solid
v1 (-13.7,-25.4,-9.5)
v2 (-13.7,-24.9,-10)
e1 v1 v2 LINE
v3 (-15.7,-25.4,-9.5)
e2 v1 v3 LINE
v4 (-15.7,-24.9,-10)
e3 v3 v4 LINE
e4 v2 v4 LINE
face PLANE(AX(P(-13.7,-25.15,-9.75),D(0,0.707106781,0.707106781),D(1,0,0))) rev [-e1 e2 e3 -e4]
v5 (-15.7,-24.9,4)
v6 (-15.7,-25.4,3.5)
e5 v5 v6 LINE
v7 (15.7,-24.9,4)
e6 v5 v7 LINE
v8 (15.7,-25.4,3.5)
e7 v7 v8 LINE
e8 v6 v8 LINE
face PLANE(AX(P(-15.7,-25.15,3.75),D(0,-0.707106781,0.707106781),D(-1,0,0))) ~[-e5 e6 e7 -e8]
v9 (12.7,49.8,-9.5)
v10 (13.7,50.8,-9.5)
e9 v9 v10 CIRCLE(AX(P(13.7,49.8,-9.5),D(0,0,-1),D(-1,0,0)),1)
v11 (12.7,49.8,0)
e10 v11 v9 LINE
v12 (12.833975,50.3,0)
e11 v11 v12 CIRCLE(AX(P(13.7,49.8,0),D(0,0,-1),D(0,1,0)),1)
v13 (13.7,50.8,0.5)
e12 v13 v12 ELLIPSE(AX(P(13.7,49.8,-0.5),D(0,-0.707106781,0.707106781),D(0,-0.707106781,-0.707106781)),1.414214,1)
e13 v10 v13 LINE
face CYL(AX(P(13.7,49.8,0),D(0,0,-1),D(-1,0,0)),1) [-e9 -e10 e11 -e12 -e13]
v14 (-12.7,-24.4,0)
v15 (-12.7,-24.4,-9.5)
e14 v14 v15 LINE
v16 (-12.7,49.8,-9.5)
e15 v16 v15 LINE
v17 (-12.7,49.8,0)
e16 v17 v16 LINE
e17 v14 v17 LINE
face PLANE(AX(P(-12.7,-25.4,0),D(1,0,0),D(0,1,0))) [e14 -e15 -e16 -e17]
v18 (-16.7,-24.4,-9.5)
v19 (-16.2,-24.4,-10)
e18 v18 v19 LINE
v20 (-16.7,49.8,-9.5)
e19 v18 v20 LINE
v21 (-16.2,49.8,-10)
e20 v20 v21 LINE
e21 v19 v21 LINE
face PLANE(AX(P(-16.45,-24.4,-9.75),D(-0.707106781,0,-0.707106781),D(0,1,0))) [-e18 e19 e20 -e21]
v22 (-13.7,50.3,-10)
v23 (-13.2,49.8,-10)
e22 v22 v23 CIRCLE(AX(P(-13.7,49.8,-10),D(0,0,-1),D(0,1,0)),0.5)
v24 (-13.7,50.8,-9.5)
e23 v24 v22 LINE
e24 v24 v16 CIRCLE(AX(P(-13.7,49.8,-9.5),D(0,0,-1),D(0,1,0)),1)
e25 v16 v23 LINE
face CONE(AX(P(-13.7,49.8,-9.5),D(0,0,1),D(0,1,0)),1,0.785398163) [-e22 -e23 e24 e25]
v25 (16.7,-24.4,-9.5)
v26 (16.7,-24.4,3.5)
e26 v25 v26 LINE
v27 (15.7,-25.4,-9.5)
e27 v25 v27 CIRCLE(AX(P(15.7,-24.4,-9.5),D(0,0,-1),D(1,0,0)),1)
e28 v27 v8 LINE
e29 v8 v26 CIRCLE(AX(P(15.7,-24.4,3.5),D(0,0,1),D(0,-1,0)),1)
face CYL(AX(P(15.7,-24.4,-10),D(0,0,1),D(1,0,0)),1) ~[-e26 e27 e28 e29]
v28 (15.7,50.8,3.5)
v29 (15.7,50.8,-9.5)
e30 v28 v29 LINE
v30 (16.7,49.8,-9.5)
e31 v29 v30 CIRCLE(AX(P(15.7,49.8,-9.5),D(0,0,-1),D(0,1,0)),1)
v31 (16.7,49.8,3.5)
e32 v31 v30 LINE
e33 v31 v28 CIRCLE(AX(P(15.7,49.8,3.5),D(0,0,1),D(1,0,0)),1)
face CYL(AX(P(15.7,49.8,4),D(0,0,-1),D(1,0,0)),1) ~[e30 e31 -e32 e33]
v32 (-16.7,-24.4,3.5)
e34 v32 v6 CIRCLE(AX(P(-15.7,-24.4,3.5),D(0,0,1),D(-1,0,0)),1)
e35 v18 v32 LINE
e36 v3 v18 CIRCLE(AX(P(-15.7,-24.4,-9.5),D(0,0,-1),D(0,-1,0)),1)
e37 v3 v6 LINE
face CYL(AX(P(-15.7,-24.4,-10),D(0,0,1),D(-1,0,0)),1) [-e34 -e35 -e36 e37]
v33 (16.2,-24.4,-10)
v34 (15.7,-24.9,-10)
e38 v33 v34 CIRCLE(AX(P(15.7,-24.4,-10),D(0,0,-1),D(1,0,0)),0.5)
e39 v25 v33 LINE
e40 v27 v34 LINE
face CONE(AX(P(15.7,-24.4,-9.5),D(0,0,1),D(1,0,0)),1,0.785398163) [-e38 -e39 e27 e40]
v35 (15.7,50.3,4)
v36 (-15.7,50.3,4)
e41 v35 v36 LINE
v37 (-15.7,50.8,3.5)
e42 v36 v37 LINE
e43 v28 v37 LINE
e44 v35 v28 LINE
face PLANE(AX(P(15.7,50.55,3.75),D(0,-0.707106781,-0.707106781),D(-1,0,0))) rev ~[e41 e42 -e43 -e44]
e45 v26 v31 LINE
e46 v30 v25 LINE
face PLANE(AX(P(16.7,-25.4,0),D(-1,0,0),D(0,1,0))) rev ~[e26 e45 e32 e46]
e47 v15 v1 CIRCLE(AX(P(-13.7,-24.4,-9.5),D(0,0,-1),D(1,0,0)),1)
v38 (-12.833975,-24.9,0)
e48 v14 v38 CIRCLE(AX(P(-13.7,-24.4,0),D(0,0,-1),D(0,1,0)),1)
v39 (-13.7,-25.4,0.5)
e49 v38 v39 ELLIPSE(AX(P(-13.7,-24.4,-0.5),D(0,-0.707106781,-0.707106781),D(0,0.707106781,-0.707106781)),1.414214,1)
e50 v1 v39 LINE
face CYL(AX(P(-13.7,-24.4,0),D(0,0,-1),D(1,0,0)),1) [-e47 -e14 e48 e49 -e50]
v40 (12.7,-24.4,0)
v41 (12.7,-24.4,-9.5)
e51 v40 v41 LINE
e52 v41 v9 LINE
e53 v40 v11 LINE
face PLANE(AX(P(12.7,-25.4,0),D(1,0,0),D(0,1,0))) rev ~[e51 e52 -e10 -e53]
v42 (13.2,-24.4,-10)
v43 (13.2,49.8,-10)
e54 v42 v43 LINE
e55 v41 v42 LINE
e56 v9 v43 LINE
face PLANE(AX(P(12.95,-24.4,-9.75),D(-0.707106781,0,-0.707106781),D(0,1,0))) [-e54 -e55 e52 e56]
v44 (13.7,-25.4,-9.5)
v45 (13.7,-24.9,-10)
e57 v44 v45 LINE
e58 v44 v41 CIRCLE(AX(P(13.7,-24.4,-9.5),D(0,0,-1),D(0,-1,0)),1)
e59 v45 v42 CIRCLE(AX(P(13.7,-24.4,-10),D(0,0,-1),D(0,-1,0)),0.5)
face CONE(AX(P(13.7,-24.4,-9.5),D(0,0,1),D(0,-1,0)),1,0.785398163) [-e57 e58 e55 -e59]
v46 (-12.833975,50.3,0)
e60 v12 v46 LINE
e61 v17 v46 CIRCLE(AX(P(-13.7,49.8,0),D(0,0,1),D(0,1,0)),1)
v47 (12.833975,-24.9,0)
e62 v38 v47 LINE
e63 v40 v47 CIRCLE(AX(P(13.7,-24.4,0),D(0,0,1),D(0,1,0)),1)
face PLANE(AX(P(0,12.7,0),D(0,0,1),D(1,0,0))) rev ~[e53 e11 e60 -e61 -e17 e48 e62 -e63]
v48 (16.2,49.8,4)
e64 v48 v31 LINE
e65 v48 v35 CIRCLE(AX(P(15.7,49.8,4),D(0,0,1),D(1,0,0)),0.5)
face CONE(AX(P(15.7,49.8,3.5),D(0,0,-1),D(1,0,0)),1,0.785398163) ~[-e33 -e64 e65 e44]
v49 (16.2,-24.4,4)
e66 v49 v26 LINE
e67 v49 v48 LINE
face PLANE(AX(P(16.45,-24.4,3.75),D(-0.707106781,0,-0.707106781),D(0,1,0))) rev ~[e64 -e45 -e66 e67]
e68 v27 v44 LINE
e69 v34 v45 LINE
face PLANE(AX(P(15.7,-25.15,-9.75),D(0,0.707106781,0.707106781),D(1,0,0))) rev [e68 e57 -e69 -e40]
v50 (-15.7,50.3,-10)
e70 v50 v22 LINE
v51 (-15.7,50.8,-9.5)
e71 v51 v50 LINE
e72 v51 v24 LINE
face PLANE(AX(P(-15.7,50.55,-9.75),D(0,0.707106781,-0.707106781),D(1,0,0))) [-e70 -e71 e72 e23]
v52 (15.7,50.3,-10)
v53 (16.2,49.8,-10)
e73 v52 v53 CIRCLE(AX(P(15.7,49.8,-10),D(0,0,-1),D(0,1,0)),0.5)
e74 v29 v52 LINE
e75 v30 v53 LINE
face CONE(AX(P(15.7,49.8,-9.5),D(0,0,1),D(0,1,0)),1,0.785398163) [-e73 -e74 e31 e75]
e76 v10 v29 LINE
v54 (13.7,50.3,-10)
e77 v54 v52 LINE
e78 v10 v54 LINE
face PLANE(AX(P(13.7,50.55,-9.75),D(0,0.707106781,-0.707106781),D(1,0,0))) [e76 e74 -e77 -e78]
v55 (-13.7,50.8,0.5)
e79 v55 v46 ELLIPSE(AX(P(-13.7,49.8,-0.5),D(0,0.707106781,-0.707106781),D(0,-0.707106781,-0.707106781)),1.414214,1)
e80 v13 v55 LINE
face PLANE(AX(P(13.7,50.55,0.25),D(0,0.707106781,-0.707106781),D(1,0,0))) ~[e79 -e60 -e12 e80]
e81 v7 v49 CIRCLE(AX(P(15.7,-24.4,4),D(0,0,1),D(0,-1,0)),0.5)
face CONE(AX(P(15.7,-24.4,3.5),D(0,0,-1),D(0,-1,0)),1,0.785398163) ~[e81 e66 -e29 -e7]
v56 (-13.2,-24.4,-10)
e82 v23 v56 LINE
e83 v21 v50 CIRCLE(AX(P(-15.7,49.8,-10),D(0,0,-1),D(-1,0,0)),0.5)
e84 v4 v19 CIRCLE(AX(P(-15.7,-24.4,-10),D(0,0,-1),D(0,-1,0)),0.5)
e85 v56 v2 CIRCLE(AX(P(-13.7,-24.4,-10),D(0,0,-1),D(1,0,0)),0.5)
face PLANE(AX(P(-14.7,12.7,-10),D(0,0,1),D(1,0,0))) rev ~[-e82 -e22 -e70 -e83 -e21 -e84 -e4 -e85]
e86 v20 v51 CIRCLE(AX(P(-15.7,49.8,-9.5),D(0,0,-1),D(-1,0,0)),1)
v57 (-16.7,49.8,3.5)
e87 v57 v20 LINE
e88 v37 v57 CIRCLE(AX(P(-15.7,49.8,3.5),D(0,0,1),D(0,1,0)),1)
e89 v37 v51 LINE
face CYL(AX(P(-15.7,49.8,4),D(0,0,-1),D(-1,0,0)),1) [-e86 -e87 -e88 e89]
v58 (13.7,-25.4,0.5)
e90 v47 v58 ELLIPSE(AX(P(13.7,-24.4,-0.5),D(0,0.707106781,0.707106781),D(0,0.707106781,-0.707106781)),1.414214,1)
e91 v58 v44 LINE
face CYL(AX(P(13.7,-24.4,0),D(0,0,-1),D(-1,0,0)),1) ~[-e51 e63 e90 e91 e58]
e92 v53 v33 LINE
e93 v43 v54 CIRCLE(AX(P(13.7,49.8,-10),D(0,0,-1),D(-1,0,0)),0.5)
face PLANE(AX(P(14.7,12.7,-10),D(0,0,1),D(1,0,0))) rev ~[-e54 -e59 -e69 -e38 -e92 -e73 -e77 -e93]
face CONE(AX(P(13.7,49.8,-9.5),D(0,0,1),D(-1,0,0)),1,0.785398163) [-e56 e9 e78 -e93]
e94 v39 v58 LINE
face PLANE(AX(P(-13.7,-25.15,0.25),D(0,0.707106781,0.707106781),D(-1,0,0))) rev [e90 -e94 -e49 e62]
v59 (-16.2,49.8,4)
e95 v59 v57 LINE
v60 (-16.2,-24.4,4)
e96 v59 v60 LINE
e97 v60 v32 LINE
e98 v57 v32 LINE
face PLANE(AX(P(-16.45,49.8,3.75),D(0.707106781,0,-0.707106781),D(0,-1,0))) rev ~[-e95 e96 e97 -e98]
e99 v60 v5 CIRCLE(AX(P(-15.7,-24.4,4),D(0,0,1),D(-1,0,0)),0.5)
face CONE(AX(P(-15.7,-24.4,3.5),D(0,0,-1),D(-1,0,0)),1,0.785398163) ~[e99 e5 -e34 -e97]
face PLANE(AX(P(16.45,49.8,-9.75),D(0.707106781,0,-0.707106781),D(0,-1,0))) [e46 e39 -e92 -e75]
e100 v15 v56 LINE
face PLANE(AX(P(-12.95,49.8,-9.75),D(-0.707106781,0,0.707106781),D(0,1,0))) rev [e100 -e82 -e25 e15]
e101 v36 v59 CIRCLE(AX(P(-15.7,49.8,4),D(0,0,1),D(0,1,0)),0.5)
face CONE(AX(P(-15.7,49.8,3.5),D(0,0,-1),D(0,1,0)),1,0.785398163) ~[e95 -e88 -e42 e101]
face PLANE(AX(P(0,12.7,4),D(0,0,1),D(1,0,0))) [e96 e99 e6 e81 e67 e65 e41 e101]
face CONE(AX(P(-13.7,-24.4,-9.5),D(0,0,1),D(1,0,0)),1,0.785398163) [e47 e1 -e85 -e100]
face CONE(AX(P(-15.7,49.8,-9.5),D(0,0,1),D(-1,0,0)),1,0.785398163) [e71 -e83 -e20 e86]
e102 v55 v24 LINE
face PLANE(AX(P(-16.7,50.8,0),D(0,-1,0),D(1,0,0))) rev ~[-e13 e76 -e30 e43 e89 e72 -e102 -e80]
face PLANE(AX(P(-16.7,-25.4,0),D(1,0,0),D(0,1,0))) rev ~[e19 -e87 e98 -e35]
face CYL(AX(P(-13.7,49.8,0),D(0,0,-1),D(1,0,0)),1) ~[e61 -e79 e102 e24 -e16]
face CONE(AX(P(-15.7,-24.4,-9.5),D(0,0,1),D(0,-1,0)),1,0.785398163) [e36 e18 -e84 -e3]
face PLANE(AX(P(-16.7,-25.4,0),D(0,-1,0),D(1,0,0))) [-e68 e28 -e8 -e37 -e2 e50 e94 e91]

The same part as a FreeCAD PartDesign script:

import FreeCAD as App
import Part
import Sketcher
from FreeCAD import Vector
Q = App.Units.Quantity


def edges_at(feature, points):
    """Names of the edges that pass closest to the given points."""
    edges = feature.Shape.Edges
    near = lambda p: min(range(len(edges)), key=lambda i: edges[i].distToShape(Part.Vertex(*p))[0])
    return sorted({f"Edge{near(p) + 1}" for p in points})

doc = App.newDocument("Part")
body = doc.addObject("PartDesign::Body", "Body")

sketch1 = doc.addObject("Sketcher::SketchObject", "Sketch")
body.addObject(sketch1)
sketch1.AttachmentSupport = (doc.XY_Plane, [""])
sketch1.MapMode = "FlatFace"
sketch1.addGeometry([
    Part.LineSegment(Vector(17, -25, 0), Vector(17, 51, 0)),
    Part.LineSegment(Vector(17, 51, 0), Vector(-17, 51, 0)),
    Part.LineSegment(Vector(-17, 51, 0), Vector(-17, -25, 0)),
    Part.LineSegment(Vector(-17, -25, 0), Vector(17, -25, 0)),
], False)
sketch1.addConstraint([
    Sketcher.Constraint("Coincident", 0, 2, 1, 1),
    Sketcher.Constraint("Coincident", 1, 2, 2, 1),
    Sketcher.Constraint("Coincident", 2, 2, 3, 1),
    Sketcher.Constraint("Coincident", 3, 2, 0, 1),
    Sketcher.Constraint("Vertical", 0),
    Sketcher.Constraint("Horizontal", 1),
    Sketcher.Constraint("Vertical", 2),
    Sketcher.Constraint("Horizontal", 3),
    Sketcher.Constraint("DistanceX", 1, 2, 1, 1, Q("33.4 mm")),
    Sketcher.Constraint("DistanceY", 0, 1, 0, 2, Q("76.2 mm")),
    Sketcher.Constraint("DistanceX", -1, 1, 0, 2, Q("16.7 mm")),
    Sketcher.Constraint("DistanceY", -1, 1, 0, 2, Q("50.8 mm")),
])
pad1 = doc.addObject("PartDesign::Pad", "Pad")
body.addObject(pad1)
pad1.Profile = sketch1
pad1.Length = 4

sketch2 = doc.addObject("Sketcher::SketchObject", "Sketch001")
body.addObject(sketch2)
sketch2.AttachmentSupport = (doc.XY_Plane, [""])
sketch2.MapMode = "FlatFace"
sketch2.addGeometry([
    Part.LineSegment(Vector(-16.7, 50.8, 0), Vector(-16.7, -25.4, 0)),
    Part.LineSegment(Vector(-16.7, -25.4, 0), Vector(-12.7, -25.4, 0)),
    Part.LineSegment(Vector(-12.7, -25.4, 0), Vector(-12.7, 50.8, 0)),
    Part.LineSegment(Vector(-12.7, 50.8, 0), Vector(-16.7, 50.8, 0)),
    Part.LineSegment(Vector(12.7, 50.8, 0), Vector(12.7, -25.4, 0)),
    Part.LineSegment(Vector(12.7, -25.4, 0), Vector(16.7, -25.4, 0)),
    Part.LineSegment(Vector(16.7, -25.4, 0), Vector(16.7, 50.8, 0)),
    Part.LineSegment(Vector(16.7, 50.8, 0), Vector(12.7, 50.8, 0)),
], False)
sketch2.addConstraint([
    Sketcher.Constraint("Coincident", 0, 2, 1, 1),
    Sketcher.Constraint("Coincident", 1, 2, 2, 1),
    Sketcher.Constraint("Coincident", 2, 2, 3, 1),
    Sketcher.Constraint("Coincident", 3, 2, 0, 1),
    Sketcher.Constraint("Coincident", 4, 2, 5, 1),
    Sketcher.Constraint("Coincident", 5, 2, 6, 1),
    Sketcher.Constraint("Coincident", 6, 2, 7, 1),
    Sketcher.Constraint("Coincident", 7, 2, 4, 1),
    Sketcher.Constraint("Vertical", 0),
    Sketcher.Constraint("Horizontal", 1),
    Sketcher.Constraint("Vertical", 2),
    Sketcher.Constraint("Horizontal", 3),
    Sketcher.Constraint("Vertical", 4),
    Sketcher.Constraint("Horizontal", 5),
    Sketcher.Constraint("Vertical", 6),
    Sketcher.Constraint("Horizontal", 7),
    Sketcher.Constraint("Symmetric", 1, 2, 4, 2, -2),
    Sketcher.Constraint("Symmetric", 3, 2, 6, 2, -2),
    Sketcher.Constraint("DistanceX", 1, 1, 1, 2, Q("4 mm")),
    Sketcher.Constraint("DistanceY", 0, 2, 0, 1, Q("76.2 mm")),
    Sketcher.Constraint("DistanceX", 0, 2, -1, 1, Q("16.7 mm")),
    Sketcher.Constraint("DistanceY", 0, 2, -1, 1, Q("25.4 mm")),
])
pad2 = doc.addObject("PartDesign::Pad", "Pad001")
body.addObject(pad2)
pad2.Profile = sketch2
pad2.Length = 10
pad2.Reversed = True
doc.recompute()

fillet = doc.addObject("PartDesign::Fillet", "Fillet")
body.addObject(fillet)
fillet.Base = (pad2, edges_at(pad2, [
    (16.7, -25.4, -3),
    (-12.7, 50.8, -5),
    (-12.7, -25.4, -5),
    (12.7, -25.4, -5),
    (12.7, 50.8, -5),
    (-16.7, -25.4, -3),
    (-16.7, 50.8, -3),
    (16.7, 50.8, -3),
]))
fillet.Radius = 1
doc.recompute()

chamfer = doc.addObject("PartDesign::Chamfer", "Chamfer")
body.addObject(chamfer)
chamfer.Base = (fillet, edges_at(fillet, [
    (0, -25.4, 0),
    (0, 50.8, 0),
    (-14.7, 50.8, -10),
    (0, 50.8, 4),
    (14.7, 50.8, -10),
    (12.7, 12.7, -10),
    (16.7, 12.7, -10),
    (14.7, -25.4, -10),
    (16.407, 50.507, -10),
    (16.407, -25.107, -10),
    (12.993, -25.107, -10),
    (12.993, 50.507, -10),
    (-12.7, 12.7, -10),
    (-14.7, -25.4, -10),
    (-16.7, 12.7, -10),
    (-16.407, 50.507, -10),
    (-16.407, -25.107, -10),
    (-12.993, -25.107, -10),
    (-12.993, 50.507, -10),
    (0, -25.4, 4),
    (-16.7, 12.7, 4),
    (16.7, 12.7, 4),
    (-16.407, 50.507, 4),
    (16.407, 50.507, 4),
    (16.407, -25.107, 4),
    (-16.407, -25.107, 4),
]))
chamfer.Size = 0.5

doc.recompute()
